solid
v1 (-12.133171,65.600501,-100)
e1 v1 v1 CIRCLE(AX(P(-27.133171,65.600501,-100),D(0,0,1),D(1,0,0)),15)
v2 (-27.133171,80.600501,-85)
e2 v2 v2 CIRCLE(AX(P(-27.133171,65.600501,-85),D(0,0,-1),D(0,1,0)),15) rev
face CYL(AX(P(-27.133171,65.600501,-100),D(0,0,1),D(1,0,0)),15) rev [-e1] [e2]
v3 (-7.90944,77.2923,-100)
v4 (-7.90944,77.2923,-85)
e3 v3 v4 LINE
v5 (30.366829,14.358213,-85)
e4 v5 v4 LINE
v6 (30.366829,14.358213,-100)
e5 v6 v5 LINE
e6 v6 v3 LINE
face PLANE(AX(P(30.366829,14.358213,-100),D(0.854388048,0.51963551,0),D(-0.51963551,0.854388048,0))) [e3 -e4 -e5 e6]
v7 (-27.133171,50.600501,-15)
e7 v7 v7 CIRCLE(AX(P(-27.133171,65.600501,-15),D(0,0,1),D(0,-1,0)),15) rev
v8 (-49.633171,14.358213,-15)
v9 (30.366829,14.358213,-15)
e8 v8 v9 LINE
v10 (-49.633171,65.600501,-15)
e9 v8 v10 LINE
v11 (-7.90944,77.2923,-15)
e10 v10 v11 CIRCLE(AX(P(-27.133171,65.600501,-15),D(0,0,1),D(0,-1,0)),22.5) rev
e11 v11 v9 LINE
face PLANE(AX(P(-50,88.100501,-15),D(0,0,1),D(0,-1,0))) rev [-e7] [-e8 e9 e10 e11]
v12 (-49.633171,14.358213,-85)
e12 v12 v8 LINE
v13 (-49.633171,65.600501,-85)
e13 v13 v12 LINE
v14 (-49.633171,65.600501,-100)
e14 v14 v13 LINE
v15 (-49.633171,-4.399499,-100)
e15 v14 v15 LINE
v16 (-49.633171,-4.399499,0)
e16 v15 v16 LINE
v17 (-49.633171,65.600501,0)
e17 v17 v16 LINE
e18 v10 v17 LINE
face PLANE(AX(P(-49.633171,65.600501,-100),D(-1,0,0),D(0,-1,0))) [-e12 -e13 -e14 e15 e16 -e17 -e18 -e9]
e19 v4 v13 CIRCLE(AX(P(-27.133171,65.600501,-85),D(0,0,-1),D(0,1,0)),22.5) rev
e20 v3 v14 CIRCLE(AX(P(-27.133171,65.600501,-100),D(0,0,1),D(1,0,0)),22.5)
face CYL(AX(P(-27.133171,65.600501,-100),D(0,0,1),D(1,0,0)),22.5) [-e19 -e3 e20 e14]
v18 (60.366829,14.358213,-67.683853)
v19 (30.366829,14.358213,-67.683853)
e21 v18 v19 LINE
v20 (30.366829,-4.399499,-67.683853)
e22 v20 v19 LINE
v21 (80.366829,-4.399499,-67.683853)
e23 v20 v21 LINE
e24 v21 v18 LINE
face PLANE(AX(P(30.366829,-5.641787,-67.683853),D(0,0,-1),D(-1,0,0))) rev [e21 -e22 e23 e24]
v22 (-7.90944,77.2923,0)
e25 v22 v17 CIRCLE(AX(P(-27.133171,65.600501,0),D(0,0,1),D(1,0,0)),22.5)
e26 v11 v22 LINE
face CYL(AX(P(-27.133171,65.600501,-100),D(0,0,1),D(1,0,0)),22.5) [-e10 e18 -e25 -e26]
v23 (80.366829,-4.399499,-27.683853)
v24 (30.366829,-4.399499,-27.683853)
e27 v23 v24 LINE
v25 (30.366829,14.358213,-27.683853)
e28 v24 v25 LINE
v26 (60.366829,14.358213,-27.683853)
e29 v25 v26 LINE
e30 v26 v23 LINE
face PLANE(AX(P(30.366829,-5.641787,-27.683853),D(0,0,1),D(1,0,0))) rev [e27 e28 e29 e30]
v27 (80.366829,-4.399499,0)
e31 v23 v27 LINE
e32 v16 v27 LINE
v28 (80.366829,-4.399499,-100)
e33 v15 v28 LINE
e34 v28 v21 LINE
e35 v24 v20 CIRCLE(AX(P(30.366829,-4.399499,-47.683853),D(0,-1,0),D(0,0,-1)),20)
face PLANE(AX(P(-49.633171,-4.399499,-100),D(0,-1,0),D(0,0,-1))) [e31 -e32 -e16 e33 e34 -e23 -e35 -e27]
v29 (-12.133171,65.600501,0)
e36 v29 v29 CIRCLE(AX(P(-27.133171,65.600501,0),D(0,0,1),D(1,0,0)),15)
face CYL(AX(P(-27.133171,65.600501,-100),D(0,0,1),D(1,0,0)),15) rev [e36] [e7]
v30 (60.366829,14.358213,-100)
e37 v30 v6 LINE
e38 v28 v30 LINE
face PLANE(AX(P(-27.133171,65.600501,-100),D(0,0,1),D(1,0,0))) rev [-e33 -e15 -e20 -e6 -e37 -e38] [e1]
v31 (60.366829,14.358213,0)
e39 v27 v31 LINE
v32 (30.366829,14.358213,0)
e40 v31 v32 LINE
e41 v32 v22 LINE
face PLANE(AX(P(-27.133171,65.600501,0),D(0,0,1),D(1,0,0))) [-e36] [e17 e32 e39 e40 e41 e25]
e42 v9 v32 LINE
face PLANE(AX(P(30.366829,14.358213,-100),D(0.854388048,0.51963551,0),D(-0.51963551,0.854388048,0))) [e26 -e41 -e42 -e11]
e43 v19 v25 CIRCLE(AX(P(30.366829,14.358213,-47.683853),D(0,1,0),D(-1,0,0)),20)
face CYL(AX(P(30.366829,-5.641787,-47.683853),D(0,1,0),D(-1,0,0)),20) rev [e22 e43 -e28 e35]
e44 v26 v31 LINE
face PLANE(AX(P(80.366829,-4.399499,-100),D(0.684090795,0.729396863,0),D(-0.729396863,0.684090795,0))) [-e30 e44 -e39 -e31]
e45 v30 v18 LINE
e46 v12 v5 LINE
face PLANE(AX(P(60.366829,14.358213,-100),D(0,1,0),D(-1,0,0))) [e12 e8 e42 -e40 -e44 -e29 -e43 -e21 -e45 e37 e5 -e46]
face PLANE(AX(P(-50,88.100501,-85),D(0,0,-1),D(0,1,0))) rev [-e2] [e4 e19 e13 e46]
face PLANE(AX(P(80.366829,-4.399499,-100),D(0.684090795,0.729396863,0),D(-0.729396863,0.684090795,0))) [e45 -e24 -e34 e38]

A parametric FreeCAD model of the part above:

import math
import FreeCAD as App
import Part
import Sketcher

V = App.Vector
Q = App.Units.Quantity

doc = App.newDocument("Part")
params = doc.addObject("Spreadsheet::Sheet", "Params")
for row, (alias, value) in enumerate([
    ("sketch1_diameter", "30 mm"),
    ("sketch1_radius", "22.5 mm"),
    ("sketch1_width", "130 mm"),
    ("sketch1_width2", "30 mm"),
    ("sketch1_height", "70 mm"),
    ("pad1_length", "100 mm"),
    ("sketch2_height", "70 mm"),
    ("pocket1_length", "100 mm"),
    ("sketch3_radius", "20 mm"),
    ("pocket2_length", "40 mm"),
], start=1):
    params.set(f"A{row}", alias)
    params.set(f"B{row}", "=" + value)
    params.setAlias(f"B{row}", alias)

body = doc.addObject("PartDesign::Body", "Body")

sketch1 = doc.addObject("Sketcher::SketchObject", "Sketch")
body.addObject(sketch1)
sketch1.AttachmentSupport = (doc.XY_Plane, [""])
sketch1.MapMode = "FlatFace"
sketch1.addGeometry([
    Part.LineSegment(V(-50, 66, 0), V(-50, -4, 0)),
    Part.LineSegment(V(-50, -4, 0), V(80, -4, 0)),
    Part.LineSegment(V(80, -4, 0), V(60, 14, 0)),
    Part.LineSegment(V(60, 14, 0), V(30, 14, 0)),
    Part.LineSegment(V(30, 14, 0), V(-8, 77, 0)),
    Part.ArcOfCircle(Part.Circle(V(-27, 66, 0), V(0, 0, 1), 22), math.radians(31), math.radians(180)),
    Part.Circle(V(-27, 66, 0), V(0, 0, 1), 15),
], False)
sketch1.addConstraint([
    Sketcher.Constraint("Coincident", 0, 2, 1, 1),
    Sketcher.Constraint("Coincident", 1, 2, 2, 1),
    Sketcher.Constraint("Coincident", 2, 2, 3, 1),
    Sketcher.Constraint("Coincident", 3, 2, 4, 1),
    Sketcher.Constraint("Tangent", 4, 2, 5, 1),
    Sketcher.Constraint("Tangent", 5, 2, 0, 1),
    Sketcher.Constraint("Vertical", 0),
    Sketcher.Constraint("Horizontal", 1),
    Sketcher.Constraint("Horizontal", 3),
    Sketcher.Constraint("Coincident", 6, 3, 5, 3),
    Sketcher.Constraint("Diameter", 6, Q("30 mm")),
    Sketcher.Constraint("Radius", 5, Q("22.5 mm")),
    Sketcher.Constraint("DistanceX", 1, 1, 1, 2, Q("130 mm")),
    Sketcher.Constraint("DistanceX", 3, 2, 3, 1, Q("30 mm")),
    Sketcher.Constraint("DistanceY", 0, 2, 0, 1, Q("70 mm")),
    Sketcher.Constraint("DistanceX", 2, 2, 1, 2, Q("20 mm")),
    Sketcher.Constraint("DistanceY", -1, 1, 5, 3, Q("65.600501 mm")),
    Sketcher.Constraint("DistanceY", -1, 1, 4, 2, Q("77.2923 mm")),
    Sketcher.Constraint("DistanceX", 5, 3, -1, 1, Q("27.133171 mm")),
])
sketch1.setExpression("Constraints[10]", "Params.sketch1_diameter")
sketch1.setExpression("Constraints[11]", "Params.sketch1_radius")
sketch1.setExpression("Constraints[12]", "Params.sketch1_width")
sketch1.setExpression("Constraints[13]", "Params.sketch1_width2")
sketch1.setExpression("Constraints[14]", "Params.sketch1_height")
pad1 = doc.addObject("PartDesign::Pad", "Pad")
body.addObject(pad1)
pad1.Profile = sketch1
pad1.setExpression("Length", "Params.pad1_length")
pad1.Reversed = True

sketch2 = doc.addObject("Sketcher::SketchObject", "Sketch001")
body.addObject(sketch2)
sketch2.AttachmentSupport = (doc.YZ_Plane, [""])
sketch2.MapMode = "FlatFace"
sketch2.addGeometry([
    Part.LineSegment(V(88, -15, 0), V(14, -15, 0)),
    Part.LineSegment(V(14, -15, 0), V(14, -85, 0)),
    Part.LineSegment(V(14, -85, 0), V(88, -85, 0)),
    Part.LineSegment(V(88, -85, 0), V(88, -15, 0)),
], False)
sketch2.addConstraint([
    Sketcher.Constraint("Coincident", 0, 2, 1, 1),
    Sketcher.Constraint("Coincident", 1, 2, 2, 1),
    Sketcher.Constraint("Coincident", 2, 2, 3, 1),
    Sketcher.Constraint("Coincident", 3, 2, 0, 1),
    Sketcher.Constraint("Horizontal", 0),
    Sketcher.Constraint("Vertical", 1),
    Sketcher.Constraint("Horizontal", 2),
    Sketcher.Constraint("Vertical", 3),
    Sketcher.Constraint("DistanceY", 1, 2, 1, 1, Q("70 mm")),
    Sketcher.Constraint("DistanceY", 0, 2, -1, 1, Q("15 mm")),
    Sketcher.Constraint("DistanceX", 0, 2, 0, 1, Q("73.742289 mm")),
    Sketcher.Constraint("DistanceX", -1, 1, 2, 2, Q("88.100501 mm")),
])
sketch2.setExpression("Constraints[8]", "Params.sketch2_height")
pocket1 = doc.addObject("PartDesign::Pocket", "Pocket")
body.addObject(pocket1)
pocket1.Profile = sketch2
pocket1.setExpression("Length", "Params.pocket1_length")
pocket1.Midplane = True

sketch3 = doc.addObject("Sketcher::SketchObject", "Sketch002")
body.addObject(sketch3)
sketch3.AttachmentSupport = (doc.XZ_Plane, [""])
sketch3.MapMode = "FlatFace"
sketch3.AttachmentOffset = App.Placement(V(0, 0, -14.358213), App.Rotation())
sketch3.addGeometry([
    Part.LineSegment(V(83, -68, 0), V(30, -68, 0)),
    Part.ArcOfCircle(Part.Circle(V(30, -48, 0), V(0, 0, 1), 20), math.radians(90), math.radians(270)),
    Part.LineSegment(V(30, -28, 0), V(83, -28, 0)),
    Part.LineSegment(V(83, -28, 0), V(83, -68, 0)),
], False)
sketch3.addConstraint([
    Sketcher.Constraint("Tangent", 0, 2, 1, 2),
    Sketcher.Constraint("Tangent", 1, 1, 2, 1),
    Sketcher.Constraint("Coincident", 2, 2, 3, 1),
    Sketcher.Constraint("Coincident", 3, 2, 0, 1),
    Sketcher.Constraint("Horizontal", 0),
    Sketcher.Constraint("Horizontal", 2),
    Sketcher.Constraint("Vertical", 3),
    Sketcher.Constraint("Radius", 1, Q("20 mm")),
    Sketcher.Constraint("DistanceX", 0, 2, 0, 1, Q("52.341354 mm")),
    Sketcher.Constraint("DistanceX", -1, 1, 1, 3, Q("30.366829 mm")),
    Sketcher.Constraint("DistanceY", 1, 3, -1, 1, Q("47.683853 mm")),
])
sketch3.setExpression("Constraints[7]", "Params.sketch3_radius")
pocket2 = doc.addObject("PartDesign::Pocket", "Pocket001")
body.addObject(pocket2)
pocket2.Profile = sketch3
pocket2.setExpression("Length", "Params.pocket2_length")
pocket2.Midplane = True

doc.recompute()
